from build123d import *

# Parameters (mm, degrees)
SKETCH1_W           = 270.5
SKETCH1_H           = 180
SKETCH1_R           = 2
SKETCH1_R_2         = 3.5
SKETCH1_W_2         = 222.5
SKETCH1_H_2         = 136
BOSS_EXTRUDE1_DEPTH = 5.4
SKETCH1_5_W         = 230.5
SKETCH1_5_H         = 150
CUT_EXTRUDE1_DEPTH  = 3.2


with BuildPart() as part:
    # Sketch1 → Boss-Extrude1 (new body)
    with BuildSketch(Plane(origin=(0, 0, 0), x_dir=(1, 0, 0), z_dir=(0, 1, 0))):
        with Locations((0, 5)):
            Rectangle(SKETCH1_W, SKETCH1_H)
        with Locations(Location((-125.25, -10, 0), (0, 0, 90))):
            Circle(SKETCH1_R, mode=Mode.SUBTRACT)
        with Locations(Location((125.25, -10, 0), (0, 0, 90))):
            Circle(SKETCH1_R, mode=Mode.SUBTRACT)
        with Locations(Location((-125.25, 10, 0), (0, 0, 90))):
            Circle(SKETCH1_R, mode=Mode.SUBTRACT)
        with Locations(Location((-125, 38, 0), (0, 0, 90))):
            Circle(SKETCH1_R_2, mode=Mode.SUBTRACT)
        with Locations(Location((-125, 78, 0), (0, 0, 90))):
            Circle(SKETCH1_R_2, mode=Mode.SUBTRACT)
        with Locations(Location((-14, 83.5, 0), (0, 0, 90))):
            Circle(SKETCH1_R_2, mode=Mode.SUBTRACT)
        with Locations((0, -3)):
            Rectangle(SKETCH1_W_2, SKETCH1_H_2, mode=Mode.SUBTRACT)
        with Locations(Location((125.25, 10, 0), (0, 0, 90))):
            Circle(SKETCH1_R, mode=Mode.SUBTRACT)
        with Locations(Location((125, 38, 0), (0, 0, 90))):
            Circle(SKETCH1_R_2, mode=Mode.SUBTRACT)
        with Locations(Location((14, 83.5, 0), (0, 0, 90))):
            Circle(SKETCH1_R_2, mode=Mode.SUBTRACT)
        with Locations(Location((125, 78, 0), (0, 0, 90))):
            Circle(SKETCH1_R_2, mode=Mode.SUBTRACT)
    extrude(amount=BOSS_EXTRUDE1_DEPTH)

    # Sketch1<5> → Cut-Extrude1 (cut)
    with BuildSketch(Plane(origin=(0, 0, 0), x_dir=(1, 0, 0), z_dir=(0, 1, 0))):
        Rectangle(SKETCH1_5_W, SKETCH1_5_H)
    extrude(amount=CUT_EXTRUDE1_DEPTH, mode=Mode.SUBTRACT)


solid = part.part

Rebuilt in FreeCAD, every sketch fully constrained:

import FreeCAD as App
import Part
import Sketcher
Q = App.Units.Quantity


def add_polygon(sketch, points):
    """Adds a closed chain of lines whose ends are joined by coincident constraints."""
    first, n = sketch.GeometryCount, len(points)
    for a, b in zip(points, points[1:] + points[:1]):
        sketch.addGeometry(Part.LineSegment(App.Vector(*a, 0), App.Vector(*b, 0)), False)
    for i in range(n):
        sketch.addConstraint(Sketcher.Constraint("Coincident", first + i, 2, first + (i + 1) % n, 1))

doc = App.newDocument("Part")
params = doc.addObject("Spreadsheet::Sheet", "Params")
for row, (alias, value) in enumerate([
    ("sketch1_diameter", "4 mm"),
    ("sketch1_diameter2", "7 mm"),
    ("sketch1_height", "180 mm"),
    ("sketch1_height2", "136 mm"),
    ("sketch1_width", "270.5 mm"),
    ("pad1_length", "5.4 mm"),
    ("sketch2_height", "150 mm"),
    ("sketch2_width", "230.5 mm"),
    ("pocket1_length", "3.2 mm"),
], start=1):
    params.set(f"A{row}", alias)
    params.set(f"B{row}", "=" + value)
    params.setAlias(f"B{row}", alias)

body = doc.addObject("PartDesign::Body", "Body")

# Sketch on XZ plane
sketch1 = body.newObject("Sketcher::SketchObject", "Sketch")
sketch1.AttachmentSupport = (doc.getObject("XZ_Plane"), [""])
sketch1.MapMode = "FlatFace"
add_polygon(sketch1, [(-135.25, -95), (-135.25, 85), (135.25, 85), (135.25, -95)])  # lines 0-3
sketch1.addGeometry(Part.Circle(App.Vector(-125.25, 10, 0), App.Vector(0, 0, 1), 2), False)  # 4
add_polygon(sketch1, [(111.25, 71), (-111.25, 71), (-111.25, -65), (111.25, -65)])  # lines 5-8
sketch1.addGeometry(Part.Circle(App.Vector(125.25, 10, 0), App.Vector(0, 0, 1), 2), False)  # 9
sketch1.addGeometry(Part.Circle(App.Vector(-125.25, -10, 0), App.Vector(0, 0, 1), 2), False)  # 10
sketch1.addGeometry(Part.Circle(App.Vector(-125, -38, 0), App.Vector(0, 0, 1), 3.5), False)  # 11
sketch1.addGeometry(Part.Circle(App.Vector(-125, -78, 0), App.Vector(0, 0, 1), 3.5), False)  # 12
sketch1.addGeometry(Part.Circle(App.Vector(-14, -83.5, 0), App.Vector(0, 0, 1), 3.5), False)  # 13
sketch1.addGeometry(Part.Circle(App.Vector(125.25, -10, 0), App.Vector(0, 0, 1), 2), False)  # 14
sketch1.addGeometry(Part.Circle(App.Vector(125, -38, 0), App.Vector(0, 0, 1), 3.5), False)  # 15
sketch1.addGeometry(Part.Circle(App.Vector(14, -83.5, 0), App.Vector(0, 0, 1), 3.5), False)  # 16
sketch1.addGeometry(Part.Circle(App.Vector(125, -78, 0), App.Vector(0, 0, 1), 3.5), False)  # 17
sketch1.addConstraint(Sketcher.Constraint("Vertical", 0))
sketch1.addConstraint(Sketcher.Constraint("Horizontal", 1))
sketch1.addConstraint(Sketcher.Constraint("Vertical", 2))
sketch1.addConstraint(Sketcher.Constraint("Horizontal", 3))
sketch1.addConstraint(Sketcher.Constraint("Horizontal", 5))
sketch1.addConstraint(Sketcher.Constraint("Vertical", 6))
sketch1.addConstraint(Sketcher.Constraint("Horizontal", 7))
sketch1.addConstraint(Sketcher.Constraint("Vertical", 8))
sketch1.addConstraint(Sketcher.Constraint("Equal", 4, 9))
sketch1.addConstraint(Sketcher.Constraint("Equal", 9, 10))
sketch1.addConstraint(Sketcher.Constraint("Equal", 11, 12))
sketch1.addConstraint(Sketcher.Constraint("Equal", 12, 13))
sketch1.addConstraint(Sketcher.Constraint("Equal", 10, 14))
sketch1.addConstraint(Sketcher.Constraint("Equal", 13, 15))
sketch1.addConstraint(Sketcher.Constraint("Equal", 15, 16))
sketch1.addConstraint(Sketcher.Constraint("Equal", 16, 17))
sketch1.addConstraint(Sketcher.Constraint("Symmetric", 9, 3, 10, 3, -1, 1))
sketch1.addConstraint(Sketcher.Constraint("Symmetric", 4, 3, 14, 3, -1, 1))
sketch1.addConstraint(Sketcher.Constraint("Symmetric", 4, 3, 9, 3, -2))
sketch1.addConstraint(Sketcher.Constraint("Symmetric", 11, 3, 15, 3, -2))
sketch1.addConstraint(Sketcher.Constraint("Symmetric", 13, 3, 16, 3, -2))
sketch1.addConstraint(Sketcher.Constraint("Symmetric", 12, 3, 17, 3, -2))
sketch1.addConstraint(Sketcher.Constraint("Vertical", 11, 3, 12, 3))
sketch1.addConstraint(Sketcher.Constraint("Diameter", 4, Q("4 mm")))
sketch1.addConstraint(Sketcher.Constraint("Diameter", 11, Q("7 mm")))
sketch1.addConstraint(Sketcher.Constraint("DistanceY", 0, 1, 0, 2, Q("180 mm")))
sketch1.addConstraint(Sketcher.Constraint("DistanceY", 6, 2, 6, 1, Q("136 mm")))
sketch1.addConstraint(Sketcher.Constraint("DistanceX", 1, 1, 1, 2, Q("270.5 mm")))
sketch1.addConstraint(Sketcher.Constraint("DistanceX", 5, 2, 5, 1, Q("222.5 mm")))
sketch1.addConstraint(Sketcher.Constraint("DistanceY", -1, 1, 4, 3, Q("10 mm")))
sketch1.addConstraint(Sketcher.Constraint("DistanceX", 11, 3, -1, 1, Q("125 mm")))
sketch1.addConstraint(Sketcher.Constraint("DistanceY", 11, 3, -1, 1, Q("38 mm")))
sketch1.addConstraint(Sketcher.Constraint("DistanceY", 12, 3, -1, 1, Q("78 mm")))
sketch1.addConstraint(Sketcher.Constraint("DistanceX", 13, 3, -1, 1, Q("14 mm")))
sketch1.addConstraint(Sketcher.Constraint("DistanceY", -1, 1, 0, 2, Q("85 mm")))
sketch1.addConstraint(Sketcher.Constraint("DistanceY", -1, 1, 5, 2, Q("71 mm")))
sketch1.addConstraint(Sketcher.Constraint("DistanceX", 0, 2, 4, 3, Q("10 mm")))
sketch1.addConstraint(Sketcher.Constraint("DistanceX", 9, 3, 1, 2, Q("10 mm")))
sketch1.addConstraint(Sketcher.Constraint("DistanceX", 0, 2, 5, 2, Q("24 mm")))
sketch1.addConstraint(Sketcher.Constraint("DistanceY", 13, 3, -1, 1, Q("83.5 mm")))
sketch1.setExpression("Constraints[31]", "Params.sketch1_diameter")
sketch1.setExpression("Constraints[32]", "Params.sketch1_diameter2")
sketch1.setExpression("Constraints[33]", "Params.sketch1_height")
sketch1.setExpression("Constraints[34]", "Params.sketch1_height2")
sketch1.setExpression("Constraints[35]", "Params.sketch1_width")
pad1 = body.newObject("PartDesign::Pad", "Pad")
pad1.Profile = sketch1
pad1.setExpression("Length", "Params.pad1_length")
pad1.Reversed = True

# Sketch on XZ plane
sketch2 = body.newObject("Sketcher::SketchObject", "Sketch001")
sketch2.AttachmentSupport = (doc.getObject("XZ_Plane"), [""])
sketch2.MapMode = "FlatFace"
add_polygon(sketch2, [(-115.25, -75), (-115.25, 75), (115.25, 75), (115.25, -75)])  # lines 0-3
sketch2.addConstraint(Sketcher.Constraint("Vertical", 0))
sketch2.addConstraint(Sketcher.Constraint("Horizontal", 1))
sketch2.addConstraint(Sketcher.Constraint("Vertical", 2))
sketch2.addConstraint(Sketcher.Constraint("Horizontal", 3))
sketch2.addConstraint(Sketcher.Constraint("Symmetric", 0, 2, 2, 2, -1, 1))
sketch2.addConstraint(Sketcher.Constraint("DistanceY", 0, 1, 0, 2, Q("150 mm")))
sketch2.addConstraint(Sketcher.Constraint("DistanceX", 1, 1, 1, 2, Q("230.5 mm")))
sketch2.setExpression("Constraints[9]", "Params.sketch2_height")
sketch2.setExpression("Constraints[10]", "Params.sketch2_width")
pocket1 = body.newObject("PartDesign::Pocket", "Pocket")
pocket1.Profile = sketch2
pocket1.setExpression("Length", "Params.pocket1_length")

doc.recompute()
